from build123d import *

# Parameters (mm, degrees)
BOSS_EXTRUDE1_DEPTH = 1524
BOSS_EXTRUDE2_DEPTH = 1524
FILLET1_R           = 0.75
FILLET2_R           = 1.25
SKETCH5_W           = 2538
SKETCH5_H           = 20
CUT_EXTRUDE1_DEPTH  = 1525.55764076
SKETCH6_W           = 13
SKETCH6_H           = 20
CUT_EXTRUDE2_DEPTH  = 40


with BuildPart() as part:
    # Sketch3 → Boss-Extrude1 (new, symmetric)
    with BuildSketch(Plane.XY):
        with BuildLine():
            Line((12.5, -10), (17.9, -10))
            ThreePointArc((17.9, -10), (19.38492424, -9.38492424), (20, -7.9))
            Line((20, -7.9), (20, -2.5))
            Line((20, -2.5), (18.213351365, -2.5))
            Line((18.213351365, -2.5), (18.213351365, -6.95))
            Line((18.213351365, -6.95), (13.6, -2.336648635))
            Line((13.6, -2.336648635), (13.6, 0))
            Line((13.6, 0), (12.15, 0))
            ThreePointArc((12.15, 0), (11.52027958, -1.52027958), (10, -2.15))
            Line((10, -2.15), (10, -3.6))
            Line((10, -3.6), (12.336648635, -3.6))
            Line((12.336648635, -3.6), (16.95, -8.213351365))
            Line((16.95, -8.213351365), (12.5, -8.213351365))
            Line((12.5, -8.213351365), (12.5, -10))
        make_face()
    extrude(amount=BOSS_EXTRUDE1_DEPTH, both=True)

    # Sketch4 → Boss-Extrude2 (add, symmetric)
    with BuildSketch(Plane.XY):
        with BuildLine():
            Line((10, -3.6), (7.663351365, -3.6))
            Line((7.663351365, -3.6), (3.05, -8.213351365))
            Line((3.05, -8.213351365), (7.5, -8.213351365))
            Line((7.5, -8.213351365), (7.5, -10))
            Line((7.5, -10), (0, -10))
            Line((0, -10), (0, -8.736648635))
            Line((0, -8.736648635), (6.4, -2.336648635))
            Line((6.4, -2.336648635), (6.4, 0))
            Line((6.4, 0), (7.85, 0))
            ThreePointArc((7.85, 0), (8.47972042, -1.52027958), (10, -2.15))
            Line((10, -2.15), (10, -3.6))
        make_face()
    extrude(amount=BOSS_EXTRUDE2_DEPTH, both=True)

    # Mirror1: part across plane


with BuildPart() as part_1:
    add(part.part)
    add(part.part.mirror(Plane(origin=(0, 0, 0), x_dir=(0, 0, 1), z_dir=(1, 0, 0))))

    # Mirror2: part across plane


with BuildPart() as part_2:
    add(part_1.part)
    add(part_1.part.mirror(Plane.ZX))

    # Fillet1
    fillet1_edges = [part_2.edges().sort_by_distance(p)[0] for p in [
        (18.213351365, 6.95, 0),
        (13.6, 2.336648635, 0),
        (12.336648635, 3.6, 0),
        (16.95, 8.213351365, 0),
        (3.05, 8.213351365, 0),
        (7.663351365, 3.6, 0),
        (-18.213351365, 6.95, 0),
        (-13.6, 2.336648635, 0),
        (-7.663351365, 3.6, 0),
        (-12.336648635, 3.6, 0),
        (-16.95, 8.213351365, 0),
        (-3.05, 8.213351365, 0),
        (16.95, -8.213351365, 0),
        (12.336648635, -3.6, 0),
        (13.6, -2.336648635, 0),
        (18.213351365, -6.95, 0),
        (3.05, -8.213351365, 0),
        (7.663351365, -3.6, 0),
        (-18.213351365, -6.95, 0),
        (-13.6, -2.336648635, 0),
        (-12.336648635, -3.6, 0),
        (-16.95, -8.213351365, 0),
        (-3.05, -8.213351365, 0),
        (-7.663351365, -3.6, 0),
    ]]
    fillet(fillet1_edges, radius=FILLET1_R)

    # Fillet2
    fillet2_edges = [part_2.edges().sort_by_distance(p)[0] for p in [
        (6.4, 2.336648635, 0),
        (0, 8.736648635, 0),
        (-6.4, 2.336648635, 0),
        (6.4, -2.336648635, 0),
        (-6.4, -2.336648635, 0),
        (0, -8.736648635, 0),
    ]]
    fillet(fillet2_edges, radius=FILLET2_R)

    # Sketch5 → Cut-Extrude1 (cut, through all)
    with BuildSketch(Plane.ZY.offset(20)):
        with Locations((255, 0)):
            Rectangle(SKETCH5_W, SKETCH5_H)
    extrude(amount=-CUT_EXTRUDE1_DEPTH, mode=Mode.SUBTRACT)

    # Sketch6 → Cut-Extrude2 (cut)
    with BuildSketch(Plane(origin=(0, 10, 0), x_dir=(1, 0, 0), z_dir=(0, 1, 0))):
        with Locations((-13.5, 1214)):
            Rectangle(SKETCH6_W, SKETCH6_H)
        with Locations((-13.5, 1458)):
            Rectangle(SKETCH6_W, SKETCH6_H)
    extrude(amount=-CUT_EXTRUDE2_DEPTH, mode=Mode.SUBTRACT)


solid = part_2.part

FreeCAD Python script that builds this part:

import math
import FreeCAD as App
import Part
import Sketcher
from FreeCAD import Vector
Q = App.Units.Quantity


def edges_at(feature, points):
    """Names of the edges that pass closest to the given points."""
    edges = feature.Shape.Edges
    near = lambda p: min(range(len(edges)), key=lambda i: edges[i].distToShape(Part.Vertex(*p))[0])
    return sorted({f"Edge{near(p) + 1}" for p in points})

doc = App.newDocument("Part")
body = doc.addObject("PartDesign::Body", "Body")

sketch1 = doc.addObject("Sketcher::SketchObject", "Sketch")
body.addObject(sketch1)
sketch1.AttachmentSupport = (doc.XY_Plane, [""])
sketch1.MapMode = "FlatFace"
sketch1.addGeometry([
    Part.LineSegment(Vector(12.5, -10, 0), Vector(17.9, -10, 0)),
    Part.ArcOfCircle(Part.Circle(Vector(17.9, -7.9, 0), Vector(0, 0, 1), 2.1), math.radians(-90), math.radians(0)),
    Part.LineSegment(Vector(20, -7.9, 0), Vector(20, -2.5, 0)),
    Part.LineSegment(Vector(20, -2.5, 0), Vector(18.213351, -2.5, 0)),
    Part.LineSegment(Vector(18.213351, -2.5, 0), Vector(18.213351, -6.95, 0)),
    Part.LineSegment(Vector(18.213351, -6.95, 0), Vector(13.6, -2.336649, 0)),
    Part.LineSegment(Vector(13.6, -2.336649, 0), Vector(13.6, 0, 0)),
    Part.LineSegment(Vector(13.6, 0, 0), Vector(12.15, 0, 0)),
    Part.ArcOfCircle(Part.Circle(Vector(10, 0, 0), Vector(0, 0, 1), 2.15), math.radians(-90), math.radians(0)),
    Part.LineSegment(Vector(10, -2.15, 0), Vector(10, -3.6, 0)),
    Part.LineSegment(Vector(10, -3.6, 0), Vector(12.336649, -3.6, 0)),
    Part.LineSegment(Vector(12.336649, -3.6, 0), Vector(16.95, -8.213351, 0)),
    Part.LineSegment(Vector(16.95, -8.213351, 0), Vector(12.5, -8.213351, 0)),
    Part.LineSegment(Vector(12.5, -8.213351, 0), Vector(12.5, -10, 0)),
], False)
sketch1.addConstraint([
    Sketcher.Constraint("Tangent", 0, 2, 1, 1),
    Sketcher.Constraint("Tangent", 1, 2, 2, 1),
    Sketcher.Constraint("Coincident", 2, 2, 3, 1),
    Sketcher.Constraint("Coincident", 3, 2, 4, 1),
    Sketcher.Constraint("Coincident", 4, 2, 5, 1),
    Sketcher.Constraint("Coincident", 5, 2, 6, 1),
    Sketcher.Constraint("Coincident", 6, 2, 7, 1),
    Sketcher.Constraint("Coincident", 7, 2, 8, 2),
    Sketcher.Constraint("Coincident", 8, 1, 9, 1),
    Sketcher.Constraint("Coincident", 9, 2, 10, 1),
    Sketcher.Constraint("Coincident", 10, 2, 11, 1),
    Sketcher.Constraint("Coincident", 11, 2, 12, 1),
    Sketcher.Constraint("Coincident", 12, 2, 13, 1),
    Sketcher.Constraint("Coincident", 13, 2, 0, 1),
    Sketcher.Constraint("Horizontal", 0),
    Sketcher.Constraint("Vertical", 2),
    Sketcher.Constraint("Horizontal", 3),
    Sketcher.Constraint("Vertical", 4),
    Sketcher.Constraint("Vertical", 6),
    Sketcher.Constraint("Horizontal", 7),
    Sketcher.Constraint("Vertical", 9),
    Sketcher.Constraint("Horizontal", 10),
    Sketcher.Constraint("Horizontal", 12),
    Sketcher.Constraint("Vertical", 13),
    Sketcher.Constraint("PointOnObject", 8, 3, -1),
    Sketcher.Constraint("PointOnObject", 6, 2, -1),
    Sketcher.Constraint("Parallel", 5, 11),
    Sketcher.Constraint("Equal", 0, 2),
    Sketcher.Constraint("Equal", 12, 4),
    Sketcher.Constraint("Equal", 10, 6),
    Sketcher.Constraint("Equal", 7, 9),
    Sketcher.Constraint("Equal", 3, 13),
    Sketcher.Constraint("Equal", 5, 11),
    Sketcher.Constraint("Radius", 1, 2.1),
    Sketcher.Constraint("Angle", 5, Q("135 deg")),
    Sketcher.Constraint("Radius", 8, 2.15),
    Sketcher.Constraint("DistanceX", 0, 1, 0, 2, 5.4),
    Sketcher.Constraint("DistanceX", -1, 1, 8, 3, 10.0),
    Sketcher.Constraint("DistanceY", 0, 2, -1, 1, 10.0),
    Sketcher.Constraint("DistanceX", 7, 2, 7, 1, 1.45),
    Sketcher.Constraint("DistanceX", 12, 2, 12, 1, 4.45),
    Sketcher.Constraint("DistanceX", 3, 2, 3, 1, 1.786649),
])
pad1 = doc.addObject("PartDesign::Pad", "Pad")
body.addObject(pad1)
pad1.Profile = sketch1
pad1.Length = 3048
pad1.Midplane = True

sketch2 = doc.addObject("Sketcher::SketchObject", "Sketch001")
body.addObject(sketch2)
sketch2.AttachmentSupport = (doc.XY_Plane, [""])
sketch2.MapMode = "FlatFace"
sketch2.addGeometry([
    Part.LineSegment(Vector(7.663351, -3.6, 0), Vector(10, -3.6, 0)),
    Part.LineSegment(Vector(10, -3.6, 0), Vector(10, -2.15, 0)),
    Part.ArcOfCircle(Part.Circle(Vector(10, 0, 0), Vector(0, 0, 1), 2.15), math.radians(180), math.radians(270)),
    Part.LineSegment(Vector(7.85, 0, 0), Vector(6.4, 0, 0)),
    Part.LineSegment(Vector(6.4, 0, 0), Vector(6.4, -2.336649, 0)),
    Part.LineSegment(Vector(6.4, -2.336649, 0), Vector(0, -8.736649, 0)),
    Part.LineSegment(Vector(0, -8.736649, 0), Vector(0, -10, 0)),
    Part.LineSegment(Vector(0, -10, 0), Vector(7.5, -10, 0)),
    Part.LineSegment(Vector(7.5, -10, 0), Vector(7.5, -8.213351, 0)),
    Part.LineSegment(Vector(7.5, -8.213351, 0), Vector(3.05, -8.213351, 0)),
    Part.LineSegment(Vector(3.05, -8.213351, 0), Vector(7.663351, -3.6, 0)),
], False)
sketch2.addConstraint([
    Sketcher.Constraint("Coincident", 0, 2, 1, 1),
    Sketcher.Constraint("Coincident", 1, 2, 2, 2),
    Sketcher.Constraint("Coincident", 2, 1, 3, 1),
    Sketcher.Constraint("Coincident", 3, 2, 4, 1),
    Sketcher.Constraint("Coincident", 4, 2, 5, 1),
    Sketcher.Constraint("Coincident", 5, 2, 6, 1),
    Sketcher.Constraint("Coincident", 6, 2, 7, 1),
    Sketcher.Constraint("Coincident", 7, 2, 8, 1),
    Sketcher.Constraint("Coincident", 8, 2, 9, 1),
    Sketcher.Constraint("Coincident", 9, 2, 10, 1),
    Sketcher.Constraint("Coincident", 10, 2, 0, 1),
    Sketcher.Constraint("Horizontal", 0),
    Sketcher.Constraint("Vertical", 1),
    Sketcher.Constraint("Horizontal", 3),
    Sketcher.Constraint("Vertical", 4),
    Sketcher.Constraint("Vertical", 6),
    Sketcher.Constraint("Horizontal", 7),
    Sketcher.Constraint("Vertical", 8),
    Sketcher.Constraint("Horizontal", 9),
    Sketcher.Constraint("PointOnObject", 2, 3, -1),
    Sketcher.Constraint("PointOnObject", 2, 1, -1),
    Sketcher.Constraint("PointOnObject", 5, 2, -2),
    Sketcher.Constraint("Parallel", 5, 10),
    Sketcher.Constraint("Vertical", 2, 3, 0, 2),
    Sketcher.Constraint("Equal", 3, 1),
    Sketcher.Constraint("Equal", 0, 4),
    Sketcher.Constraint("Angle", 5, Q("-135 deg")),
    Sketcher.Constraint("Radius", 2, 2.15),
    Sketcher.Constraint("DistanceX", 7, 1, 7, 2, 7.5),
    Sketcher.Constraint("DistanceX", -1, 1, 2, 3, 10.0),
    Sketcher.Constraint("DistanceY", 6, 2, -1, 1, 10.0),
    Sketcher.Constraint("DistanceX", 3, 2, 3, 1, 1.45),
    Sketcher.Constraint("DistanceX", 9, 2, 9, 1, 4.45),
    Sketcher.Constraint("DistanceX", 0, 1, 0, 2, 2.336649),
])
pad2 = doc.addObject("PartDesign::Pad", "Pad001")
body.addObject(pad2)
pad2.Profile = sketch2
pad2.Length = 3048
pad2.Midplane = True
body2 = doc.addObject("PartDesign::Body", "Body001")
doc.recompute()

body2.BaseFeature = body
doc.recompute()

mirroring = doc.addObject("Part::Mirroring", "Mirroring")
mirroring.Source = body
mirroring.Base = Vector(0, 0, 0)
mirroring.Normal = Vector(1, 0, 0)
body3 = doc.addObject("PartDesign::Body", "Body002")
body3.BaseFeature = mirroring
boolean = doc.addObject("PartDesign::Boolean", "Boolean")
body2.addObject(boolean)
boolean.Type = "Fuse"
boolean.addObjects([body3])
doc.recompute()
body4 = doc.addObject("PartDesign::Body", "Body003")
doc.recompute()

body4.BaseFeature = body2
doc.recompute()

mirroring2 = doc.addObject("Part::Mirroring", "Mirroring001")
mirroring2.Source = body2
mirroring2.Base = Vector(0, 0, 0)
mirroring2.Normal = Vector(0, 1, 0)
body5 = doc.addObject("PartDesign::Body", "Body004")
body5.BaseFeature = mirroring2
boolean2 = doc.addObject("PartDesign::Boolean", "Boolean001")
body4.addObject(boolean2)
boolean2.Type = "Fuse"
boolean2.addObjects([body5])
doc.recompute()

fillet = doc.addObject("PartDesign::Fillet", "Fillet")
body4.addObject(fillet)
fillet.Base = (boolean2, edges_at(boolean2, [
    (18.213, 6.95, 0),
    (13.6, 2.337, 0),
    (12.337, 3.6, 0),
    (16.95, 8.213, 0),
    (3.05, 8.213, 0),
    (7.663, 3.6, 0),
    (-18.213, 6.95, 0),
    (-13.6, 2.337, 0),
    (-7.663, 3.6, 0),
    (-12.337, 3.6, 0),
    (-16.95, 8.213, 0),
    (-3.05, 8.213, 0),
    (16.95, -8.213, 0),
    (12.337, -3.6, 0),
    (13.6, -2.337, 0),
    (18.213, -6.95, 0),
    (3.05, -8.213, 0),
    (7.663, -3.6, 0),
    (-18.213, -6.95, 0),
    (-13.6, -2.337, 0),
    (-12.337, -3.6, 0),
    (-16.95, -8.213, 0),
    (-3.05, -8.213, 0),
    (-7.663, -3.6, 0),
]))
fillet.Radius = 0.75
doc.recompute()

fillet2 = doc.addObject("PartDesign::Fillet", "Fillet001")
body4.addObject(fillet2)
fillet2.Base = (fillet, edges_at(fillet, [
    (6.4, 2.337, 0),
    (0, 8.737, 0),
    (-6.4, 2.337, 0),
    (6.4, -2.337, 0),
    (-6.4, -2.337, 0),
    (0, -8.737, 0),
]))
fillet2.Radius = 1.25

sketch3 = doc.addObject("Sketcher::SketchObject", "Sketch002")
body4.addObject(sketch3)
sketch3.AttachmentSupport = (doc.getObject("YZ_Plane003"), [""])
sketch3.MapMode = "FlatFace"
sketch3.AttachmentOffset = App.Placement(Vector(0, 0, -20), App.Rotation())
sketch3.addGeometry([
    Part.LineSegment(Vector(10, -1014, 0), Vector(-10, -1014, 0)),
    Part.LineSegment(Vector(-10, -1014, 0), Vector(-10, 1524, 0)),
    Part.LineSegment(Vector(-10, 1524, 0), Vector(10, 1524, 0)),
    Part.LineSegment(Vector(10, 1524, 0), Vector(10, -1014, 0)),
], False)
sketch3.addConstraint([
    Sketcher.Constraint("Coincident", 0, 2, 1, 1),
    Sketcher.Constraint("Coincident", 1, 2, 2, 1),
    Sketcher.Constraint("Coincident", 2, 2, 3, 1),
    Sketcher.Constraint("Coincident", 3, 2, 0, 1),
    Sketcher.Constraint("Horizontal", 0),
    Sketcher.Constraint("Vertical", 1),
    Sketcher.Constraint("Horizontal", 2),
    Sketcher.Constraint("Vertical", 3),
    Sketcher.Constraint("DistanceX", 0, 2, 0, 1, 20.0),
    Sketcher.Constraint("DistanceY", 1, 1, 1, 2, 2538.0),
    Sketcher.Constraint("DistanceX", 0, 2, -1, 1, 10.0),
    Sketcher.Constraint("DistanceY", 0, 2, -1, 1, 1014.0),
])
pocket1 = doc.addObject("PartDesign::Pocket", "Pocket")
body4.addObject(pocket1)
pocket1.Profile = sketch3
pocket1.Type = "ThroughAll"
pocket1.Reversed = True

sketch4 = doc.addObject("Sketcher::SketchObject", "Sketch003")
body4.addObject(sketch4)
sketch4.AttachmentSupport = (doc.getObject("XZ_Plane003"), [""])
sketch4.MapMode = "FlatFace"
sketch4.AttachmentOffset = App.Placement(Vector(0, 0, -10), App.Rotation())
sketch4.addGeometry([
    Part.LineSegment(Vector(-20, -1224, 0), Vector(-20, -1204, 0)),
    Part.LineSegment(Vector(-20, -1204, 0), Vector(-7, -1204, 0)),
    Part.LineSegment(Vector(-7, -1204, 0), Vector(-7, -1224, 0)),
    Part.LineSegment(Vector(-7, -1224, 0), Vector(-20, -1224, 0)),
    Part.LineSegment(Vector(-20, -1468, 0), Vector(-20, -1448, 0)),
    Part.LineSegment(Vector(-20, -1448, 0), Vector(-7, -1448, 0)),
    Part.LineSegment(Vector(-7, -1448, 0), Vector(-7, -1468, 0)),
    Part.LineSegment(Vector(-7, -1468, 0), Vector(-20, -1468, 0)),
], False)
sketch4.addConstraint([
    Sketcher.Constraint("Coincident", 0, 2, 1, 1),
    Sketcher.Constraint("Coincident", 1, 2, 2, 1),
    Sketcher.Constraint("Coincident", 2, 2, 3, 1),
    Sketcher.Constraint("Coincident", 3, 2, 0, 1),
    Sketcher.Constraint("Coincident", 4, 2, 5, 1),
    Sketcher.Constraint("Coincident", 5, 2, 6, 1),
    Sketcher.Constraint("Coincident", 6, 2, 7, 1),
    Sketcher.Constraint("Coincident", 7, 2, 4, 1),
    Sketcher.Constraint("Vertical", 0),
    Sketcher.Constraint("Horizontal", 1),
    Sketcher.Constraint("Vertical", 2),
    Sketcher.Constraint("Horizontal", 3),
    Sketcher.Constraint("Vertical", 4),
    Sketcher.Constraint("Horizontal", 5),
    Sketcher.Constraint("Vertical", 6),
    Sketcher.Constraint("Horizontal", 7),
    Sketcher.Constraint("Vertical", 3, 2, 4, 2),
    Sketcher.Constraint("Vertical", 2, 2, 5, 2),
    Sketcher.Constraint("Equal", 2, 4),
    Sketcher.Constraint("DistanceX", 1, 1, 1, 2, 13.0),
    Sketcher.Constraint("DistanceY", 0, 1, 0, 2, 20.0),
    Sketcher.Constraint("DistanceX", 0, 2, -1, 1, 20.0),
    Sketcher.Constraint("DistanceY", 0, 2, -1, 1, 1204.0),
    Sketcher.Constraint("DistanceY", 4, 2, -1, 1, 1448.0),
])
pocket2 = doc.addObject("PartDesign::Pocket", "Pocket001")
body4.addObject(pocket2)
pocket2.Profile = sketch4
pocket2.Length = 40
pocket2.Reversed = True
mirroring.Visibility = False
mirroring2.Visibility = False

doc.recompute()
